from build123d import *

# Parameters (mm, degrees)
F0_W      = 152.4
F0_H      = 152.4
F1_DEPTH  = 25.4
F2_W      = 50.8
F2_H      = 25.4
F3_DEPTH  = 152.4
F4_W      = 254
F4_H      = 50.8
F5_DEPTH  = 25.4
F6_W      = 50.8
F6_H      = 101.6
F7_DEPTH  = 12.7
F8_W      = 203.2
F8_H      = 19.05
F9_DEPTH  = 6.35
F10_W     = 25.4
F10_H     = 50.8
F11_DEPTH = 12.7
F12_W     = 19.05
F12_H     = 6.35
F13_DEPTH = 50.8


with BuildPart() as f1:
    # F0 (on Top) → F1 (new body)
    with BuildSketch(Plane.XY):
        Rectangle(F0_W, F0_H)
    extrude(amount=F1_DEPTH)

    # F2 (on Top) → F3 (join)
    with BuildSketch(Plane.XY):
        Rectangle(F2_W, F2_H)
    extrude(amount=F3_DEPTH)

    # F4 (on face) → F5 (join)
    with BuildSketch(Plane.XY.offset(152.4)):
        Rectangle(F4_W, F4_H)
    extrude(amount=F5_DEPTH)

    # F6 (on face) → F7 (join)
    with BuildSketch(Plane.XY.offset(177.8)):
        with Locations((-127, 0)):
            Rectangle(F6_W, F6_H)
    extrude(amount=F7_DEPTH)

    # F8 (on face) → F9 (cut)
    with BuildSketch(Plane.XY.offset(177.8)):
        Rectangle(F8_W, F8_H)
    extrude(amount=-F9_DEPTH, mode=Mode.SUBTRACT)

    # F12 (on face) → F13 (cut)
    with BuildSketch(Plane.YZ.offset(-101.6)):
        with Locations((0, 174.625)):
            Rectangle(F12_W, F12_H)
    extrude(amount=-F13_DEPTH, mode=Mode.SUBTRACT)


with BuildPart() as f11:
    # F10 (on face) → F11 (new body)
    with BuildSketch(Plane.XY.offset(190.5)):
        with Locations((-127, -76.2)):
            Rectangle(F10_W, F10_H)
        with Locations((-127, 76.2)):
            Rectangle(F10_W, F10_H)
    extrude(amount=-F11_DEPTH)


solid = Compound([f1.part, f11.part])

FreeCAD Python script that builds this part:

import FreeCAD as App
import Part
import Sketcher
Q = App.Units.Quantity


def add_polygon(sketch, points):
    """Adds a closed chain of lines whose ends are joined by coincident constraints."""
    first, n = sketch.GeometryCount, len(points)
    for a, b in zip(points, points[1:] + points[:1]):
        sketch.addGeometry(Part.LineSegment(App.Vector(*a, 0), App.Vector(*b, 0)), False)
    for i in range(n):
        sketch.addConstraint(Sketcher.Constraint("Coincident", first + i, 2, first + (i + 1) % n, 1))

doc = App.newDocument("Part")
body = doc.addObject("PartDesign::Body", "Body")

sketch1 = body.newObject("Sketcher::SketchObject", "Sketch")
sketch1.AttachmentSupport = (doc.getObject("XY_Plane"), [""])
sketch1.MapMode = "FlatFace"
add_polygon(sketch1, [(-76, 76), (-76, -76), (76, -76), (76, 76)])
sketch1.addConstraint([
    Sketcher.Constraint("Vertical", 0),
    Sketcher.Constraint("Horizontal", 1),
    Sketcher.Constraint("Vertical", 2),
    Sketcher.Constraint("Horizontal", 3),
    Sketcher.Constraint("Symmetric", 0, 2, 2, 2, -1, 1),
    Sketcher.Constraint("Equal", 3, 0),
    Sketcher.Constraint("DistanceX", 1, 1, 1, 2, Q("6 in")),
])
pad1 = body.newObject("PartDesign::Pad", "Pad")
pad1.Profile = sketch1
pad1.Length = Q("1 in")

sketch2 = body.newObject("Sketcher::SketchObject", "Sketch001")
sketch2.AttachmentSupport = (doc.getObject("XY_Plane"), [""])
sketch2.MapMode = "FlatFace"
add_polygon(sketch2, [(-25, 13), (-25, -13), (25, -13), (25, 13)])
sketch2.addConstraint([
    Sketcher.Constraint("Vertical", 0),
    Sketcher.Constraint("Horizontal", 1),
    Sketcher.Constraint("Vertical", 2),
    Sketcher.Constraint("Horizontal", 3),
    Sketcher.Constraint("Symmetric", 0, 2, 2, 2, -1, 1),
    Sketcher.Constraint("DistanceX", 1, 1, 1, 2, Q("2 in")),
    Sketcher.Constraint("DistanceY", 0, 2, 0, 1, Q("1 in")),
])
pad2 = body.newObject("PartDesign::Pad", "Pad001")
pad2.Profile = sketch2
pad2.Length = Q("6 in")

sketch3 = body.newObject("Sketcher::SketchObject", "Sketch002")
sketch3.AttachmentSupport = (doc.getObject("XY_Plane"), [""])
sketch3.MapMode = "FlatFace"
sketch3.AttachmentOffset = App.Placement(App.Vector(0, 0, 6 * 25.4), App.Rotation())
add_polygon(sketch3, [(-127, 25), (-127, -25), (127, -25), (127, 25)])
sketch3.addConstraint([
    Sketcher.Constraint("Vertical", 0),
    Sketcher.Constraint("Horizontal", 1),
    Sketcher.Constraint("Vertical", 2),
    Sketcher.Constraint("Horizontal", 3),
    Sketcher.Constraint("Symmetric", 0, 2, 2, 2, -1, 1),
    Sketcher.Constraint("DistanceX", 1, 1, 1, 2, Q("10 in")),
    Sketcher.Constraint("DistanceY", 0, 2, 0, 1, Q("2 in")),
])
pad3 = body.newObject("PartDesign::Pad", "Pad002")
pad3.Profile = sketch3
pad3.Length = Q("1 in")

sketch4 = body.newObject("Sketcher::SketchObject", "Sketch003")
sketch4.AttachmentSupport = (doc.getObject("XY_Plane"), [""])
sketch4.MapMode = "FlatFace"
sketch4.AttachmentOffset = App.Placement(App.Vector(0, 0, 7 * 25.4), App.Rotation())
add_polygon(sketch4, [(-152, 51), (-152, -51), (-102, -51), (-102, 51)])
sketch4.addConstraint([
    Sketcher.Constraint("Vertical", 0),
    Sketcher.Constraint("Horizontal", 1),
    Sketcher.Constraint("Vertical", 2),
    Sketcher.Constraint("Horizontal", 3),
    Sketcher.Constraint("DistanceX", 1, 1, 1, 2, Q("2 in")),
    Sketcher.Constraint("DistanceY", 0, 2, 0, 1, Q("4 in")),
    Sketcher.Constraint("DistanceX", 0, 2, -1, 1, Q("6 in")),
    Sketcher.Constraint("DistanceY", 0, 2, -1, 1, Q("2 in")),
])
pad4 = body.newObject("PartDesign::Pad", "Pad003")
pad4.Profile = sketch4
pad4.Length = Q("0.5 in")

sketch5 = body.newObject("Sketcher::SketchObject", "Sketch004")
sketch5.AttachmentSupport = (doc.getObject("XY_Plane"), [""])
sketch5.MapMode = "FlatFace"
sketch5.AttachmentOffset = App.Placement(App.Vector(0, 0, 7 * 25.4), App.Rotation())
add_polygon(sketch5, [(-102, 10), (-102, -10), (102, -10), (102, 10)])
sketch5.addConstraint([
    Sketcher.Constraint("Vertical", 0),
    Sketcher.Constraint("Horizontal", 1),
    Sketcher.Constraint("Vertical", 2),
    Sketcher.Constraint("Horizontal", 3),
    Sketcher.Constraint("Symmetric", 0, 2, 2, 2, -1, 1),
    Sketcher.Constraint("DistanceX", 1, 1, 1, 2, Q("8 in")),
    Sketcher.Constraint("DistanceY", 0, 2, 0, 1, Q("0.75 in")),
])
pocket1 = body.newObject("PartDesign::Pocket", "Pocket")
pocket1.Profile = sketch5
pocket1.Length = Q("0.25 in")

sketch6 = body.newObject("Sketcher::SketchObject", "Sketch005")
sketch6.AttachmentSupport = (doc.getObject("YZ_Plane"), [""])
sketch6.MapMode = "FlatFace"
sketch6.AttachmentOffset = App.Placement(App.Vector(0, 0, -4 * 25.4), App.Rotation())
add_polygon(sketch6, [(-10, 178), (-10, 171), (10, 171), (10, 178)])
sketch6.addConstraint([
    Sketcher.Constraint("Vertical", 0),
    Sketcher.Constraint("Horizontal", 1),
    Sketcher.Constraint("Vertical", 2),
    Sketcher.Constraint("Horizontal", 3),
    Sketcher.Constraint("DistanceY", -1, 1, 2, 2, Q("7 in")),
    Sketcher.Constraint("DistanceX", 1, 1, 1, 2, Q("0.75 in")),
    Sketcher.Constraint("DistanceY", 0, 2, 0, 1, Q("0.25 in")),
    Sketcher.Constraint("DistanceX", 0, 2, -1, 1, Q("0.375 in")),
])
pocket2 = body.newObject("PartDesign::Pocket", "Pocket001")
pocket2.Profile = sketch6
pocket2.Length = Q("2 in")
body2 = doc.addObject("PartDesign::Body", "Body001")
body2.AllowCompound = True

sketch7 = body2.newObject("Sketcher::SketchObject", "Sketch006")
sketch7.AttachmentSupport = (doc.getObject("XY_Plane001"), [""])
sketch7.MapMode = "FlatFace"
sketch7.AttachmentOffset = App.Placement(App.Vector(0, 0, 7.5 * 25.4), App.Rotation())
add_polygon(sketch7, [(-140, -51), (-140, -102), (-114, -102), (-114, -51)])
add_polygon(sketch7, [(-140, 102), (-140, 51), (-114, 51), (-114, 102)])
sketch7.addConstraint([
    Sketcher.Constraint("Vertical", 0),
    Sketcher.Constraint("Horizontal", 1),
    Sketcher.Constraint("Vertical", 2),
    Sketcher.Constraint("Horizontal", 3),
    Sketcher.Constraint("Vertical", 4),
    Sketcher.Constraint("Horizontal", 5),
    Sketcher.Constraint("Vertical", 6),
    Sketcher.Constraint("Horizontal", 7),
    Sketcher.Constraint("Symmetric", 3, 2, 4, 2, -1),
    Sketcher.Constraint("Symmetric", 1, 2, 6, 2, -1),
    Sketcher.Constraint("DistanceX", 1, 1, 1, 2, Q("1 in")),
    Sketcher.Constraint("DistanceY", 0, 2, 0, 1, Q("2 in")),
    Sketcher.Constraint("DistanceY", 0, 2, -1, 1, Q("4 in")),
    Sketcher.Constraint("DistanceX", 0, 2, -1, 1, Q("5.5 in")),
])
pad5 = body2.newObject("PartDesign::Pad", "Pad004")
pad5.Profile = sketch7
pad5.Length = Q("0.5 in")
pad5.Reversed = True

doc.recompute()
